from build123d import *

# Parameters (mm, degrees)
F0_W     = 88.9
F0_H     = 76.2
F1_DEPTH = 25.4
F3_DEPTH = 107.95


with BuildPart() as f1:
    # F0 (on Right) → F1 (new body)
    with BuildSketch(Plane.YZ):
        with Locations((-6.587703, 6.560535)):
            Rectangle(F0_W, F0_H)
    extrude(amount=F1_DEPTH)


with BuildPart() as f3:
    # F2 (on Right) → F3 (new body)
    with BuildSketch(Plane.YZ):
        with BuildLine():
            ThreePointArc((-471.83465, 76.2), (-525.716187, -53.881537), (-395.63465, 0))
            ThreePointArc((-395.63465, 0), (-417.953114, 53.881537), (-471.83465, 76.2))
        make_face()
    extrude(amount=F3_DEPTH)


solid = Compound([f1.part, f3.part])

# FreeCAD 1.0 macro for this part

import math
import FreeCAD as App
import Part
import Sketcher
from FreeCAD import Vector
Q = App.Units.Quantity


def add_polygon(sketch, points):
    """Adds a closed chain of lines whose ends are joined by coincident constraints."""
    first, n = sketch.GeometryCount, len(points)
    for a, b in zip(points, points[1:] + points[:1]):
        sketch.addGeometry(Part.LineSegment(App.Vector(*a, 0), App.Vector(*b, 0)), False)
    for i in range(n):
        sketch.addConstraint(Sketcher.Constraint("Coincident", first + i, 2, first + (i + 1) % n, 1))

doc = App.newDocument("Part")
body = doc.addObject("PartDesign::Body", "Body")

sketch1 = doc.addObject("Sketcher::SketchObject", "Sketch")
body.addObject(sketch1)
sketch1.AttachmentSupport = (doc.YZ_Plane, [""])
sketch1.MapMode = "FlatFace"
add_polygon(sketch1, [(-51.037703, 44.660535), (-51.037703, -31.539465), (37.862297, -31.539465), (37.862297, 44.660535)])
sketch1.addConstraint([
    Sketcher.Constraint("Vertical", 0),
    Sketcher.Constraint("Horizontal", 1),
    Sketcher.Constraint("Vertical", 2),
    Sketcher.Constraint("Horizontal", 3),
    Sketcher.Constraint("DistanceY", 0, 2, 0, 1, Q("3 in")),
    Sketcher.Constraint("DistanceX", 1, 1, 1, 2, Q("3.5 in")),
    Sketcher.Constraint("DistanceX", 0, 2, -1, 1, 51.037703),
    Sketcher.Constraint("DistanceY", 0, 2, -1, 1, 31.539465),
])
pad1 = doc.addObject("PartDesign::Pad", "Pad")
body.addObject(pad1)
pad1.Profile = sketch1
pad1.Length = Q("1 in")
body2 = doc.addObject("PartDesign::Body", "Body001")

sketch2 = doc.addObject("Sketcher::SketchObject", "Sketch001")
body2.addObject(sketch2)
sketch2.AttachmentSupport = (doc.getObject("YZ_Plane001"), [""])
sketch2.MapMode = "FlatFace"
sketch2.addGeometry([
    Part.ArcOfCircle(Part.Circle(Vector(-471.83465, 0, 0), Vector(0, 0, 1), 76.2), math.radians(90), math.radians(360)),
    Part.ArcOfCircle(Part.Circle(Vector(-471.834651, -0.000001, 0), Vector(0, 0, 1), 76.200001), math.radians(0.000001), math.radians(89.999999)),
], False)
sketch2.addConstraint([
    Sketcher.Constraint("Tangent", 0, 1, 1, 2),
    Sketcher.Constraint("Coincident", 1, 1, 0, 2),
    Sketcher.Constraint("PointOnObject", 0, 3, -1),
    Sketcher.Constraint("PointOnObject", 1, 1, -1),
    Sketcher.Constraint("Vertical", 1, 3, 0, 1),
    Sketcher.Constraint("Radius", 0, Q("3 in")),
    Sketcher.Constraint("DistanceX", 0, 3, -1, 1, 471.83465),
])
pad2 = doc.addObject("PartDesign::Pad", "Pad001")
body2.addObject(pad2)
pad2.Profile = sketch2
pad2.Length = Q("4.25 in")

doc.recompute()
